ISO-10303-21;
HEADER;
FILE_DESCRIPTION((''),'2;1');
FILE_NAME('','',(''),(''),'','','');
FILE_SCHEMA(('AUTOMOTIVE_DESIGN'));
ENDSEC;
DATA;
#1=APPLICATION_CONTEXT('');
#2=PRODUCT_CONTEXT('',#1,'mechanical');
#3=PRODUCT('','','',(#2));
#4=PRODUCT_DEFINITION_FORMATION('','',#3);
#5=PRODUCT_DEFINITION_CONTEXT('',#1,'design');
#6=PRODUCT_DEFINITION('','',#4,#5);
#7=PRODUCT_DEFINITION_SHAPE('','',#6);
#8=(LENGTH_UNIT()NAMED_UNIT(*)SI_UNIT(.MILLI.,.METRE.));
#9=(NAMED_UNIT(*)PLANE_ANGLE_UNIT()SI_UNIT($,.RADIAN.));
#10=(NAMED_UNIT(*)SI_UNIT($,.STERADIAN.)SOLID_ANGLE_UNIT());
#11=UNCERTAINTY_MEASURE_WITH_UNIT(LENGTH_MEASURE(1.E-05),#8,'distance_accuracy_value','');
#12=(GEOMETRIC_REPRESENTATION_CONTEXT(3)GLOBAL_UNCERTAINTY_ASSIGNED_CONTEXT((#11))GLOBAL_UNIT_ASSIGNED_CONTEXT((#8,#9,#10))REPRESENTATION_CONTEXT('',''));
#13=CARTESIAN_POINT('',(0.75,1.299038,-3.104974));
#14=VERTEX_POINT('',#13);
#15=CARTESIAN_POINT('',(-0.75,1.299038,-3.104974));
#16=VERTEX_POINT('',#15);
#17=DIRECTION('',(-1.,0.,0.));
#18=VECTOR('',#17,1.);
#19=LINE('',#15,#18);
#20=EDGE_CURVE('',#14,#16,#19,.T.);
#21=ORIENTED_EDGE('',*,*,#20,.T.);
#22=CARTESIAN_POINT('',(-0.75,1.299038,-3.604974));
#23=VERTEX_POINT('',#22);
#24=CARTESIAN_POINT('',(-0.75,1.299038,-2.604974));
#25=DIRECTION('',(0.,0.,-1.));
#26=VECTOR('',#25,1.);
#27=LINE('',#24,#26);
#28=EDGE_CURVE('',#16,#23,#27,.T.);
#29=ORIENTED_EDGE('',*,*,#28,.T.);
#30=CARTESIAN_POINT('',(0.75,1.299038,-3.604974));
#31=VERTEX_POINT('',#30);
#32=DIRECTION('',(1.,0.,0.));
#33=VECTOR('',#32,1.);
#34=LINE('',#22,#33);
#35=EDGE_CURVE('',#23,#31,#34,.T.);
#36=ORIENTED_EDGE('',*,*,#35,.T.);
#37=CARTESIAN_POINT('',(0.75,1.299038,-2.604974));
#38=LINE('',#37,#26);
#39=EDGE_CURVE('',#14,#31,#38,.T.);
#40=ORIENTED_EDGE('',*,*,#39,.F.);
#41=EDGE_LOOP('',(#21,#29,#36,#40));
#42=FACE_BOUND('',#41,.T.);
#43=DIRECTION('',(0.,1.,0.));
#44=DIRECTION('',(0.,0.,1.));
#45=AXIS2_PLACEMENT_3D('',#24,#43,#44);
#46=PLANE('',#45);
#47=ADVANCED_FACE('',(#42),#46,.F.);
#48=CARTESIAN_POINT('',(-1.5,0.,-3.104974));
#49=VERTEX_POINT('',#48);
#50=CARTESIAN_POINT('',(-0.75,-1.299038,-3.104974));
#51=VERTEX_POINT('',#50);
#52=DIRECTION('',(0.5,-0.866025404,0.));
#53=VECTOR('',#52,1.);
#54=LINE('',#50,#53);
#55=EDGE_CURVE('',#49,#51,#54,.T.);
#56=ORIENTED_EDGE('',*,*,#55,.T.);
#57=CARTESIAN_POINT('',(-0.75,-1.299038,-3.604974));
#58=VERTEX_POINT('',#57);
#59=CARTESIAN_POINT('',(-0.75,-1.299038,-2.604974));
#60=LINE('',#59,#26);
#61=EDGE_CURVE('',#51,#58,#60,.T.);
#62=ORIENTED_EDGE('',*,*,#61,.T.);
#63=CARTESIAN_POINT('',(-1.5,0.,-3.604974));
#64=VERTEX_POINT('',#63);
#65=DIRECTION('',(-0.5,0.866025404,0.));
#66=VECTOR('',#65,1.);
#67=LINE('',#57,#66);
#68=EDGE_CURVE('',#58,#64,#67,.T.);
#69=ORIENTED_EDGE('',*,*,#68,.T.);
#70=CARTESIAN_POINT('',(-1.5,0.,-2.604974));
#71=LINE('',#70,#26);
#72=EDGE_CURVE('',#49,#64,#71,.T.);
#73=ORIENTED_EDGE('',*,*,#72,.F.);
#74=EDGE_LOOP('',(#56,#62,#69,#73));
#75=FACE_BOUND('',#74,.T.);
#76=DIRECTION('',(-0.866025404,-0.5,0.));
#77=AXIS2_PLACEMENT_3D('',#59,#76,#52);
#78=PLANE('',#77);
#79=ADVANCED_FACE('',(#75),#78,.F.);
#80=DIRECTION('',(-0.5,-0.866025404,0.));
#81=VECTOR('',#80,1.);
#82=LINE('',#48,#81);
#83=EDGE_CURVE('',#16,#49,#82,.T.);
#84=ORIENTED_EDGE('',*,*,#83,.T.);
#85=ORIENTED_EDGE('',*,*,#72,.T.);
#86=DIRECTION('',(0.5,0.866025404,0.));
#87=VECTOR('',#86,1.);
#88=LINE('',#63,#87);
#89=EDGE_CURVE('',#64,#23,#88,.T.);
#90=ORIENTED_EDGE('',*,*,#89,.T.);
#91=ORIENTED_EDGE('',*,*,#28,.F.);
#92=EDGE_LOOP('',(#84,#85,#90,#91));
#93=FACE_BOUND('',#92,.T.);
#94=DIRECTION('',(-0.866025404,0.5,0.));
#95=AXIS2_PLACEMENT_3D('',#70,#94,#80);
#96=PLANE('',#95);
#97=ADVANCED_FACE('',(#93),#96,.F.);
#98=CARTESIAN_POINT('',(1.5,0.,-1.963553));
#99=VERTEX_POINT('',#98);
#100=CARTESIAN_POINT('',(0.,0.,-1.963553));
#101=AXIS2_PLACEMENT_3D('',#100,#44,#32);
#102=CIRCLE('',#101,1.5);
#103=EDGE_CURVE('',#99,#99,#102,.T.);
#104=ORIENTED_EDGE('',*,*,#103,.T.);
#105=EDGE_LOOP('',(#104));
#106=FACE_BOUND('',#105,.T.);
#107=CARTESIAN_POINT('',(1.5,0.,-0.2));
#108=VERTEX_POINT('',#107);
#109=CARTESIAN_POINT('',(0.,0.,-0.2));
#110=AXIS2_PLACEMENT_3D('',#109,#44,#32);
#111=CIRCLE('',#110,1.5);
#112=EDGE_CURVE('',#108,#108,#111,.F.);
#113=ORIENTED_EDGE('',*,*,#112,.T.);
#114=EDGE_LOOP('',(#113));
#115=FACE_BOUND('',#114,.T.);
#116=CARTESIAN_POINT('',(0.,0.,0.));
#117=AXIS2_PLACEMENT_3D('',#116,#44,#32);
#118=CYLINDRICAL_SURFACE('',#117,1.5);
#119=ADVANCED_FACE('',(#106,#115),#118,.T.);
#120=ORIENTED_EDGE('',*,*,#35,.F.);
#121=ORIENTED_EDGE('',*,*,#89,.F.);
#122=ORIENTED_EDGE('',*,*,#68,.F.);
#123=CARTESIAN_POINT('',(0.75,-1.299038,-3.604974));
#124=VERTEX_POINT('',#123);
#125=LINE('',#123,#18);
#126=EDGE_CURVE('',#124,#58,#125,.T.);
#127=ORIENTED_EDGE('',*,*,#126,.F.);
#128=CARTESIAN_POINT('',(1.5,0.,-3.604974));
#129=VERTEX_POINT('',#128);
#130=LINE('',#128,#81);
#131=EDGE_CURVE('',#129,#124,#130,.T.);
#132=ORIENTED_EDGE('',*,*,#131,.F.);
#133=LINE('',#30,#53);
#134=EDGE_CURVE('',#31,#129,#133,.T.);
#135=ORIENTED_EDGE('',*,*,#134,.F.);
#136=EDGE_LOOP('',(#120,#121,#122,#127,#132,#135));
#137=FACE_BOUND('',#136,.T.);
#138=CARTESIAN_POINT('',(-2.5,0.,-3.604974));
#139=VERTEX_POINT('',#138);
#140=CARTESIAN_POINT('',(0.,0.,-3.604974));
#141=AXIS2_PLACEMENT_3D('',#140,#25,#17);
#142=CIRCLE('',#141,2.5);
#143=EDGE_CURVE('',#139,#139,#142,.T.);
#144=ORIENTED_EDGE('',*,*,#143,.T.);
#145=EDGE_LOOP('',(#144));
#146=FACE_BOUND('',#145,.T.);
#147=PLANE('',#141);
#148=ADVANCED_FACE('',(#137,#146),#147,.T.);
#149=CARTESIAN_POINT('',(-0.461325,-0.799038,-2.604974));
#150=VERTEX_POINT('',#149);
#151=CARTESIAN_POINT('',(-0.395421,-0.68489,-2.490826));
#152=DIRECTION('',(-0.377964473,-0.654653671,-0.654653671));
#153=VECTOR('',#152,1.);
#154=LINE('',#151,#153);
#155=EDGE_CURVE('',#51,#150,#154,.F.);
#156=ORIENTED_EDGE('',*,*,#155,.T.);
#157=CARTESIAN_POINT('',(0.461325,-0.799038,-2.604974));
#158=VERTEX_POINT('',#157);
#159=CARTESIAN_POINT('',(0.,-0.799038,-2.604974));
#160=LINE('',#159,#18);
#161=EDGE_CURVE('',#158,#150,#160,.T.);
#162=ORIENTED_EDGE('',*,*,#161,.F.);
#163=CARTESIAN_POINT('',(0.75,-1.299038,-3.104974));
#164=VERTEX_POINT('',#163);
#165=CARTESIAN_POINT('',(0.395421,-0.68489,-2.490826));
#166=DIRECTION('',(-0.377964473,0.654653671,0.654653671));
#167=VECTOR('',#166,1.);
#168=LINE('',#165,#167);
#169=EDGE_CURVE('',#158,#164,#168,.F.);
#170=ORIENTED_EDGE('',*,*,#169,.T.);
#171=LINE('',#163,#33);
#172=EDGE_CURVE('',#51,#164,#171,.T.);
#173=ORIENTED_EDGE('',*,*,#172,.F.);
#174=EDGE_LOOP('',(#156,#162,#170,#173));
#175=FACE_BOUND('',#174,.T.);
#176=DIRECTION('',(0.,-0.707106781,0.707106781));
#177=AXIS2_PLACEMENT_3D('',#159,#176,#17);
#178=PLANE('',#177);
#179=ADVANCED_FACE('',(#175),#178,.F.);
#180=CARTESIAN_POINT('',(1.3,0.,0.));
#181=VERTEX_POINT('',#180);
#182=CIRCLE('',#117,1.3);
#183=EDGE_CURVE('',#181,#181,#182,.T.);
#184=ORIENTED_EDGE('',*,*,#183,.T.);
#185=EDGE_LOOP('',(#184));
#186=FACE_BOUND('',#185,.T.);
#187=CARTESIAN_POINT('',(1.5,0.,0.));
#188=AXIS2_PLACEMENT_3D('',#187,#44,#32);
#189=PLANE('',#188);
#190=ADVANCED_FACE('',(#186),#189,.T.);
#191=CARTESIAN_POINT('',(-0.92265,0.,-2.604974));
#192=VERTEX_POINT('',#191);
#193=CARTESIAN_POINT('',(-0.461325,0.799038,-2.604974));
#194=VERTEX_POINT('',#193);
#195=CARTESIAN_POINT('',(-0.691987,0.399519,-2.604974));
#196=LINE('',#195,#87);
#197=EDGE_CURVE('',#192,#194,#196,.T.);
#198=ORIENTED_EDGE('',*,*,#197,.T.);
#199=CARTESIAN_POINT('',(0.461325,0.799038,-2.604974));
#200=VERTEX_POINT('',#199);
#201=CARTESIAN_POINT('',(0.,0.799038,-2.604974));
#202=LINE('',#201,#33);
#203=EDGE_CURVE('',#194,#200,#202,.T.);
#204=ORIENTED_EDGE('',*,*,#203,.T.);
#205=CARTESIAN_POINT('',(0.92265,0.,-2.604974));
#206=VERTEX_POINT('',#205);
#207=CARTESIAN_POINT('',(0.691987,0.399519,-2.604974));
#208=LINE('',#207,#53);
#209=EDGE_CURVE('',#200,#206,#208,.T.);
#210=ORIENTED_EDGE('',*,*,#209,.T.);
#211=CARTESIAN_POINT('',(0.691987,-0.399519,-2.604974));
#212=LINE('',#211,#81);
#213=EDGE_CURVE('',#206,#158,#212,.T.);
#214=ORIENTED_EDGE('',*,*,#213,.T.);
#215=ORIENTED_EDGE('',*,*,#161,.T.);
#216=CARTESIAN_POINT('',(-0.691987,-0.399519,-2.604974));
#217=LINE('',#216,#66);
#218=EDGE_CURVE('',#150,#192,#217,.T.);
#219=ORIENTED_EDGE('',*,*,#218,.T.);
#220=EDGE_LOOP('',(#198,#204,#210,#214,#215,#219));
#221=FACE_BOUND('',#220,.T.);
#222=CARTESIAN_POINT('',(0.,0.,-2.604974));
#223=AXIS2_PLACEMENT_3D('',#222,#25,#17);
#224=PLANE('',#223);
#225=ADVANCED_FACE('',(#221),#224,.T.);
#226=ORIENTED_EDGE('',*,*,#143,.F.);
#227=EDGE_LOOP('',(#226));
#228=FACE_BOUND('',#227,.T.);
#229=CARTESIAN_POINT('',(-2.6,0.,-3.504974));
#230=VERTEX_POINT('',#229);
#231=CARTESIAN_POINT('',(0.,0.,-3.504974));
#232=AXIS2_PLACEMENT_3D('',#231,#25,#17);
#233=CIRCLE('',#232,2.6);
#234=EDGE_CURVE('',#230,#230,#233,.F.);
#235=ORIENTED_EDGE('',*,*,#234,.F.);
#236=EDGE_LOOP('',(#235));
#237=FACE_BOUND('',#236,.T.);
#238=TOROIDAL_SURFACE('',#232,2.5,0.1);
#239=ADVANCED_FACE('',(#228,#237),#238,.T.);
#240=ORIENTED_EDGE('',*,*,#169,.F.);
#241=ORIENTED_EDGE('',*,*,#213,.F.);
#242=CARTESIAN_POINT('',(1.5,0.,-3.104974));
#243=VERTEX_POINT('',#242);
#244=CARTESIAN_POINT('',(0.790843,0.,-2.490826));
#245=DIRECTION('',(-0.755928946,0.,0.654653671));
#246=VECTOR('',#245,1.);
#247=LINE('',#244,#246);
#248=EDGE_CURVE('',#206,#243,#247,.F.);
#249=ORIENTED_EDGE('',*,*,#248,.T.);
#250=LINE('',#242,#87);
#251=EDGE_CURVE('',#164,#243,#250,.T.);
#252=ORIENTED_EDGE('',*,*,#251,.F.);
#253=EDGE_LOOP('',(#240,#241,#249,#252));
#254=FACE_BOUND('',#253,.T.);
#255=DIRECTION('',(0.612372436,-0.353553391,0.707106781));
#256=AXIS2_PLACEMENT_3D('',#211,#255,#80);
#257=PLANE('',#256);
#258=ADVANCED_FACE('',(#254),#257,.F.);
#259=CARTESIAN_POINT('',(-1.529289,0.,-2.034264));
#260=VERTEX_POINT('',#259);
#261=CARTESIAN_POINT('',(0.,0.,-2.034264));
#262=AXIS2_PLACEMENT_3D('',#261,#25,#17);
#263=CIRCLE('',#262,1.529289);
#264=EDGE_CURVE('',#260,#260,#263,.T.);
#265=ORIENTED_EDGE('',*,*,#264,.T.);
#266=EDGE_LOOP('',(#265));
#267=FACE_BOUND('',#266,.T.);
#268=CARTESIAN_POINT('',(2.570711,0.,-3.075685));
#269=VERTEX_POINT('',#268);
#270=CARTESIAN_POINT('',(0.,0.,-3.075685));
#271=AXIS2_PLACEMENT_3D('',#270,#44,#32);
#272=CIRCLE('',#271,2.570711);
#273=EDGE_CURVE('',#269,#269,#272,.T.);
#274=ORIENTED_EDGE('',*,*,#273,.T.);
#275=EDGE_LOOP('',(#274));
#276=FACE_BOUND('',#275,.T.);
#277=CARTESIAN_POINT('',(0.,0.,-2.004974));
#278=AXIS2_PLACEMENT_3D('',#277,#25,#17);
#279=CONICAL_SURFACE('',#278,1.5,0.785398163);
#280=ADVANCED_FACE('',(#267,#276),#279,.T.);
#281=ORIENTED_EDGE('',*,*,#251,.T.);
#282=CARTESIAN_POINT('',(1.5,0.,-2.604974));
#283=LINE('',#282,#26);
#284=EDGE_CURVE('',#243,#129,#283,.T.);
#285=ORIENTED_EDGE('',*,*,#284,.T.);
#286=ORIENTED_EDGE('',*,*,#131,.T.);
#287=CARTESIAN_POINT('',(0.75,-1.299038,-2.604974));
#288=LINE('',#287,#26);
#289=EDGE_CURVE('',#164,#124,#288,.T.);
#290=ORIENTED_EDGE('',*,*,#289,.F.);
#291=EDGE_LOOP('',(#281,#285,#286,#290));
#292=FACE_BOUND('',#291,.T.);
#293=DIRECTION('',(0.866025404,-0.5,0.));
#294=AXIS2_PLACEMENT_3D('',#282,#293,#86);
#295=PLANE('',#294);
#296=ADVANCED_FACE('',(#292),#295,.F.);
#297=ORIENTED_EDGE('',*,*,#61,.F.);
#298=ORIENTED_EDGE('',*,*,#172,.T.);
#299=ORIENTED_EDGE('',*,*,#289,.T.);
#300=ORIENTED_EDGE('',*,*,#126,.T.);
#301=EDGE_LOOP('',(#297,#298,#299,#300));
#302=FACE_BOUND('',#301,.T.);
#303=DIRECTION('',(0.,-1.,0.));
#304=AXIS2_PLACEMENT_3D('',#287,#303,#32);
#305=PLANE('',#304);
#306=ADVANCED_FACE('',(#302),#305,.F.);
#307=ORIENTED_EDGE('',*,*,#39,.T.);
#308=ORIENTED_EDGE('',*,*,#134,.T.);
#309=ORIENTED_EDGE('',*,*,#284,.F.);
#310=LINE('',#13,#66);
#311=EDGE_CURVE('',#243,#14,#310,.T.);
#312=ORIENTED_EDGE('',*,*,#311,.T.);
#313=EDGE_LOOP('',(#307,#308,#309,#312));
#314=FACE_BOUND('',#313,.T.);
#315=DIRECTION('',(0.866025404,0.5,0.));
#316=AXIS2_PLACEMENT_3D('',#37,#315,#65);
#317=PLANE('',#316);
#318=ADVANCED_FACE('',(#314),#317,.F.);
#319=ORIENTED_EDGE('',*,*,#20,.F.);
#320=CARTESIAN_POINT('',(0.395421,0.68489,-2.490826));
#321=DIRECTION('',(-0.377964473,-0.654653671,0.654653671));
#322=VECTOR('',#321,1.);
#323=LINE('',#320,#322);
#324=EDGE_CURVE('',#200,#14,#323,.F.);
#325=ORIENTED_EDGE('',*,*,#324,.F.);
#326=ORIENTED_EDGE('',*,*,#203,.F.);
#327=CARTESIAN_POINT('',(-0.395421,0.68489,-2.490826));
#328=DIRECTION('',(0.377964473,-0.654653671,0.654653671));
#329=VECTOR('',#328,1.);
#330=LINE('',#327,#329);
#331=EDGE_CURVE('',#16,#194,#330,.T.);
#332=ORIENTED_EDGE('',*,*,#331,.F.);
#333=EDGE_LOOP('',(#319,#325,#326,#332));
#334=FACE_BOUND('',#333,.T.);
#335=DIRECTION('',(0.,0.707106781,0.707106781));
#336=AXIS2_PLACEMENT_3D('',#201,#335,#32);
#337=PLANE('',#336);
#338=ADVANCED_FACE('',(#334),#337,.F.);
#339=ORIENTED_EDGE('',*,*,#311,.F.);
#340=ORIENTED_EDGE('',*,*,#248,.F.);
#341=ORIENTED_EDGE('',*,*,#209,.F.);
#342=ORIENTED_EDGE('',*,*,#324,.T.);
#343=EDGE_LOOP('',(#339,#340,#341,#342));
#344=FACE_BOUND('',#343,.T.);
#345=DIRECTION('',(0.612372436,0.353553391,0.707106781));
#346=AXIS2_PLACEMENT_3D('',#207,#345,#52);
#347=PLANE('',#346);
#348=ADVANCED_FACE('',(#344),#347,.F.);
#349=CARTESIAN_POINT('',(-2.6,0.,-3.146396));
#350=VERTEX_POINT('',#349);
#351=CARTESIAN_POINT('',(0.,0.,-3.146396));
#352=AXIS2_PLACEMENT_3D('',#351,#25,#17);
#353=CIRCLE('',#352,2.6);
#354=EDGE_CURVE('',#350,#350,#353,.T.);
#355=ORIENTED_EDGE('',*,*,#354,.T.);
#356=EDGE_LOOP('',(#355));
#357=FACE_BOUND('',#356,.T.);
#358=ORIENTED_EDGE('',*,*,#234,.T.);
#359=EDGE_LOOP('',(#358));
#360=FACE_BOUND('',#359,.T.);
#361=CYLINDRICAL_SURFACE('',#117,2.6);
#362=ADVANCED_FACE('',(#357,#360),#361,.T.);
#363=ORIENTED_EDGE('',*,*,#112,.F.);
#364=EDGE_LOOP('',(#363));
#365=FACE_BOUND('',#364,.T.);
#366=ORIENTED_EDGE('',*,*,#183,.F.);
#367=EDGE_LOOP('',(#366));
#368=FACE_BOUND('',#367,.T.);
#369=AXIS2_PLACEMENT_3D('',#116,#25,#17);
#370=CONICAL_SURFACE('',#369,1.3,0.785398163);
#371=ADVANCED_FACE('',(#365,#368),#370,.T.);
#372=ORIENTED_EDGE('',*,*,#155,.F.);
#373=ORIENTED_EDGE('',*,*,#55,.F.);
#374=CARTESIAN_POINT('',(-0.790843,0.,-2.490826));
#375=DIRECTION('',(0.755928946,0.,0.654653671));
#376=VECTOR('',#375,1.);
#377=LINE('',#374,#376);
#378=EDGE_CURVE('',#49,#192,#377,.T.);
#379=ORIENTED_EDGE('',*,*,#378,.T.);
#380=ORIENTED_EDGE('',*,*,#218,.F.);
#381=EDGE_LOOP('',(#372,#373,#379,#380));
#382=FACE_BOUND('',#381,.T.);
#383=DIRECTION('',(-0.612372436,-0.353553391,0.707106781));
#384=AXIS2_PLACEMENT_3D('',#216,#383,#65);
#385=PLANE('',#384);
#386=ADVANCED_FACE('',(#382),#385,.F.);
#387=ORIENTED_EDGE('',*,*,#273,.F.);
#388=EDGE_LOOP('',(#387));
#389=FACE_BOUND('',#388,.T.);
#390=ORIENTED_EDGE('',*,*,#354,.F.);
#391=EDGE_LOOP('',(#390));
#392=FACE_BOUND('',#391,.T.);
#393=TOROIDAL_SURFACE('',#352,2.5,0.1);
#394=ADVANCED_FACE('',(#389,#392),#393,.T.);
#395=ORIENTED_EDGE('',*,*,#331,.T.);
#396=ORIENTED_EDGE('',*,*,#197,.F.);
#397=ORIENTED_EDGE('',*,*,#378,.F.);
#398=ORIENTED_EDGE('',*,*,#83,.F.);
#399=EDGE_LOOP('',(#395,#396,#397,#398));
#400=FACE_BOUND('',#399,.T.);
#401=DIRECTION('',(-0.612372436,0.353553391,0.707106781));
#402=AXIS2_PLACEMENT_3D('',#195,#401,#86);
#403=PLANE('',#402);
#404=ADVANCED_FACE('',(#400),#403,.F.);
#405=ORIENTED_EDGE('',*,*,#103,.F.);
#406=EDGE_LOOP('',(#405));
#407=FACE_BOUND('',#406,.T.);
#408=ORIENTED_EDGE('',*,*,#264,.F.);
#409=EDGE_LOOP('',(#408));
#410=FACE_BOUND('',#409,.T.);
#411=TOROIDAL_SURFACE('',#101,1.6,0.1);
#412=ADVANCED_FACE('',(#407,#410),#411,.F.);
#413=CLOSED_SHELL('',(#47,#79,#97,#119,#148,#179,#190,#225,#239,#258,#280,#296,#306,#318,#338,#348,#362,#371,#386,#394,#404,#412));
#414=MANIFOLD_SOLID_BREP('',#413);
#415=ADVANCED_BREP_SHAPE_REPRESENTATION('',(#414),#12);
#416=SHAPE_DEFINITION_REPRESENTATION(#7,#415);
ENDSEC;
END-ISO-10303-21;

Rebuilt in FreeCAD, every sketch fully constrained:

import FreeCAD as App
import Part
import Sketcher

V = App.Vector
Q = App.Units.Quantity


def edges_at(feature, points):
    """Names of the edges that pass closest to the given points."""
    edges = feature.Shape.Edges
    near = lambda p: min(range(len(edges)), key=lambda i: edges[i].distToShape(Part.Vertex(*p))[0])
    return sorted({f"Edge{near(p) + 1}" for p in points})


def add_polygon(sketch, points):
    """Adds a closed chain of lines whose ends are joined by coincident constraints."""
    first, n = sketch.GeometryCount, len(points)
    for a, b in zip(points, points[1:] + points[:1]):
        sketch.addGeometry(Part.LineSegment(App.Vector(*a, 0), App.Vector(*b, 0)), False)
    for i in range(n):
        sketch.addConstraint(Sketcher.Constraint("Coincident", first + i, 2, first + (i + 1) % n, 1))

doc = App.newDocument("Part")
body = doc.addObject("PartDesign::Body", "Body")

# Sketch on XZ plane
sketch1 = body.newObject("Sketcher::SketchObject", "Sketch")
sketch1.AttachmentSupport = (doc.getObject("XZ_Plane"), [""])
sketch1.MapMode = "FlatFace"
add_polygon(sketch1, [(2.6, -3.604974), (0, -3.604974), (0, 0), (1.5, 0), (1.5, -2.004974), (2.6, -3.104974)])  # lines 0-5
sketch1.addConstraint([
    Sketcher.Constraint("Horizontal", 0),
    Sketcher.Constraint("Vertical", 1),
    Sketcher.Constraint("Horizontal", 2),
    Sketcher.Constraint("Vertical", 3),
    Sketcher.Constraint("Vertical", 5),
    Sketcher.Constraint("Coincident", 1, 2, -1, 1),
    Sketcher.Constraint("Angle", 4, Q("-45 deg")),
    Sketcher.Constraint("DistanceX", 0, 2, 0, 1, Q("2.6 mm")),
    Sketcher.Constraint("DistanceX", 2, 1, 2, 2, Q("1.5 mm")),
    Sketcher.Constraint("DistanceY", 5, 2, 5, 1, Q("0.5 mm")),
    Sketcher.Constraint("DistanceY", 1, 1, 1, 2, Q("3.604974 mm")),
])
revolution = body.newObject("PartDesign::Revolution", "Revolution")
revolution.Profile = sketch1
revolution.ReferenceAxis = (sketch1, ["V_Axis"])
revolution.Angle = 360

# Sketch on XY plane
sketch2 = body.newObject("Sketcher::SketchObject", "Sketch001")
sketch2.AttachmentSupport = (doc.getObject("XY_Plane"), [""])
sketch2.MapMode = "FlatFace"
sketch2.AttachmentOffset = App.Placement(V(0, 0, -3.604974), App.Rotation())
add_polygon(sketch2, [(-1.5, 0), (-0.75, 1.299038), (0.75, 1.299038), (1.5, 0), (0.75, -1.299038), (-0.75, -1.299038)])  # lines 0-5
sketch2.addConstraint([
    Sketcher.Constraint("Horizontal", 1),
    Sketcher.Constraint("Horizontal", 4),
    Sketcher.Constraint("Symmetric", 0, 2, 3, 2, -1, 1),
    Sketcher.Constraint("Symmetric", 2, 2, 5, 2, -1, 1),
    Sketcher.Constraint("PointOnObject", 2, 2, -1),
    Sketcher.Constraint("Parallel", 2, 5),
    Sketcher.Constraint("Vertical", 1, 2, 3, 2),
    Sketcher.Constraint("Angle", 0, Q("60 deg")),
    Sketcher.Constraint("DistanceX", 1, 1, 1, 2, Q("1.5 mm")),
    Sketcher.Constraint("DistanceX", 5, 2, 2, 2, Q("3 mm")),
])
pocket1 = body.newObject("PartDesign::Pocket", "Pocket")
pocket1.Profile = sketch2
pocket1.Length = 1
pocket1.Reversed = True
doc.recompute()

chamfer = body.newObject("PartDesign::Chamfer", "Chamfer")
chamfer.Base = (pocket1, edges_at(pocket1, [
    (-1.125, -0.65, -2.605),
    (0, -1.299, -2.605),
    (1.125, -0.65, -2.605),
    (1.125, 0.65, -2.605),
    (0, 1.299, -2.605),
    (-1.125, 0.65, -2.605),
]))
chamfer.Size = 0.5
doc.recompute()

fillet = body.newObject("PartDesign::Fillet", "Fillet")
fillet.Base = (chamfer, edges_at(chamfer, [(-1.5, 0, -2.005), (-2.6, 0, -3.105), (-2.6, 0, -3.605)]))
fillet.Radius = 0.1
doc.recompute()

chamfer2 = body.newObject("PartDesign::Chamfer", "Chamfer001")
chamfer2.Base = (fillet, edges_at(fillet, [(-1.5, 0, 0)]))
chamfer2.Size = 0.2

doc.recompute()
